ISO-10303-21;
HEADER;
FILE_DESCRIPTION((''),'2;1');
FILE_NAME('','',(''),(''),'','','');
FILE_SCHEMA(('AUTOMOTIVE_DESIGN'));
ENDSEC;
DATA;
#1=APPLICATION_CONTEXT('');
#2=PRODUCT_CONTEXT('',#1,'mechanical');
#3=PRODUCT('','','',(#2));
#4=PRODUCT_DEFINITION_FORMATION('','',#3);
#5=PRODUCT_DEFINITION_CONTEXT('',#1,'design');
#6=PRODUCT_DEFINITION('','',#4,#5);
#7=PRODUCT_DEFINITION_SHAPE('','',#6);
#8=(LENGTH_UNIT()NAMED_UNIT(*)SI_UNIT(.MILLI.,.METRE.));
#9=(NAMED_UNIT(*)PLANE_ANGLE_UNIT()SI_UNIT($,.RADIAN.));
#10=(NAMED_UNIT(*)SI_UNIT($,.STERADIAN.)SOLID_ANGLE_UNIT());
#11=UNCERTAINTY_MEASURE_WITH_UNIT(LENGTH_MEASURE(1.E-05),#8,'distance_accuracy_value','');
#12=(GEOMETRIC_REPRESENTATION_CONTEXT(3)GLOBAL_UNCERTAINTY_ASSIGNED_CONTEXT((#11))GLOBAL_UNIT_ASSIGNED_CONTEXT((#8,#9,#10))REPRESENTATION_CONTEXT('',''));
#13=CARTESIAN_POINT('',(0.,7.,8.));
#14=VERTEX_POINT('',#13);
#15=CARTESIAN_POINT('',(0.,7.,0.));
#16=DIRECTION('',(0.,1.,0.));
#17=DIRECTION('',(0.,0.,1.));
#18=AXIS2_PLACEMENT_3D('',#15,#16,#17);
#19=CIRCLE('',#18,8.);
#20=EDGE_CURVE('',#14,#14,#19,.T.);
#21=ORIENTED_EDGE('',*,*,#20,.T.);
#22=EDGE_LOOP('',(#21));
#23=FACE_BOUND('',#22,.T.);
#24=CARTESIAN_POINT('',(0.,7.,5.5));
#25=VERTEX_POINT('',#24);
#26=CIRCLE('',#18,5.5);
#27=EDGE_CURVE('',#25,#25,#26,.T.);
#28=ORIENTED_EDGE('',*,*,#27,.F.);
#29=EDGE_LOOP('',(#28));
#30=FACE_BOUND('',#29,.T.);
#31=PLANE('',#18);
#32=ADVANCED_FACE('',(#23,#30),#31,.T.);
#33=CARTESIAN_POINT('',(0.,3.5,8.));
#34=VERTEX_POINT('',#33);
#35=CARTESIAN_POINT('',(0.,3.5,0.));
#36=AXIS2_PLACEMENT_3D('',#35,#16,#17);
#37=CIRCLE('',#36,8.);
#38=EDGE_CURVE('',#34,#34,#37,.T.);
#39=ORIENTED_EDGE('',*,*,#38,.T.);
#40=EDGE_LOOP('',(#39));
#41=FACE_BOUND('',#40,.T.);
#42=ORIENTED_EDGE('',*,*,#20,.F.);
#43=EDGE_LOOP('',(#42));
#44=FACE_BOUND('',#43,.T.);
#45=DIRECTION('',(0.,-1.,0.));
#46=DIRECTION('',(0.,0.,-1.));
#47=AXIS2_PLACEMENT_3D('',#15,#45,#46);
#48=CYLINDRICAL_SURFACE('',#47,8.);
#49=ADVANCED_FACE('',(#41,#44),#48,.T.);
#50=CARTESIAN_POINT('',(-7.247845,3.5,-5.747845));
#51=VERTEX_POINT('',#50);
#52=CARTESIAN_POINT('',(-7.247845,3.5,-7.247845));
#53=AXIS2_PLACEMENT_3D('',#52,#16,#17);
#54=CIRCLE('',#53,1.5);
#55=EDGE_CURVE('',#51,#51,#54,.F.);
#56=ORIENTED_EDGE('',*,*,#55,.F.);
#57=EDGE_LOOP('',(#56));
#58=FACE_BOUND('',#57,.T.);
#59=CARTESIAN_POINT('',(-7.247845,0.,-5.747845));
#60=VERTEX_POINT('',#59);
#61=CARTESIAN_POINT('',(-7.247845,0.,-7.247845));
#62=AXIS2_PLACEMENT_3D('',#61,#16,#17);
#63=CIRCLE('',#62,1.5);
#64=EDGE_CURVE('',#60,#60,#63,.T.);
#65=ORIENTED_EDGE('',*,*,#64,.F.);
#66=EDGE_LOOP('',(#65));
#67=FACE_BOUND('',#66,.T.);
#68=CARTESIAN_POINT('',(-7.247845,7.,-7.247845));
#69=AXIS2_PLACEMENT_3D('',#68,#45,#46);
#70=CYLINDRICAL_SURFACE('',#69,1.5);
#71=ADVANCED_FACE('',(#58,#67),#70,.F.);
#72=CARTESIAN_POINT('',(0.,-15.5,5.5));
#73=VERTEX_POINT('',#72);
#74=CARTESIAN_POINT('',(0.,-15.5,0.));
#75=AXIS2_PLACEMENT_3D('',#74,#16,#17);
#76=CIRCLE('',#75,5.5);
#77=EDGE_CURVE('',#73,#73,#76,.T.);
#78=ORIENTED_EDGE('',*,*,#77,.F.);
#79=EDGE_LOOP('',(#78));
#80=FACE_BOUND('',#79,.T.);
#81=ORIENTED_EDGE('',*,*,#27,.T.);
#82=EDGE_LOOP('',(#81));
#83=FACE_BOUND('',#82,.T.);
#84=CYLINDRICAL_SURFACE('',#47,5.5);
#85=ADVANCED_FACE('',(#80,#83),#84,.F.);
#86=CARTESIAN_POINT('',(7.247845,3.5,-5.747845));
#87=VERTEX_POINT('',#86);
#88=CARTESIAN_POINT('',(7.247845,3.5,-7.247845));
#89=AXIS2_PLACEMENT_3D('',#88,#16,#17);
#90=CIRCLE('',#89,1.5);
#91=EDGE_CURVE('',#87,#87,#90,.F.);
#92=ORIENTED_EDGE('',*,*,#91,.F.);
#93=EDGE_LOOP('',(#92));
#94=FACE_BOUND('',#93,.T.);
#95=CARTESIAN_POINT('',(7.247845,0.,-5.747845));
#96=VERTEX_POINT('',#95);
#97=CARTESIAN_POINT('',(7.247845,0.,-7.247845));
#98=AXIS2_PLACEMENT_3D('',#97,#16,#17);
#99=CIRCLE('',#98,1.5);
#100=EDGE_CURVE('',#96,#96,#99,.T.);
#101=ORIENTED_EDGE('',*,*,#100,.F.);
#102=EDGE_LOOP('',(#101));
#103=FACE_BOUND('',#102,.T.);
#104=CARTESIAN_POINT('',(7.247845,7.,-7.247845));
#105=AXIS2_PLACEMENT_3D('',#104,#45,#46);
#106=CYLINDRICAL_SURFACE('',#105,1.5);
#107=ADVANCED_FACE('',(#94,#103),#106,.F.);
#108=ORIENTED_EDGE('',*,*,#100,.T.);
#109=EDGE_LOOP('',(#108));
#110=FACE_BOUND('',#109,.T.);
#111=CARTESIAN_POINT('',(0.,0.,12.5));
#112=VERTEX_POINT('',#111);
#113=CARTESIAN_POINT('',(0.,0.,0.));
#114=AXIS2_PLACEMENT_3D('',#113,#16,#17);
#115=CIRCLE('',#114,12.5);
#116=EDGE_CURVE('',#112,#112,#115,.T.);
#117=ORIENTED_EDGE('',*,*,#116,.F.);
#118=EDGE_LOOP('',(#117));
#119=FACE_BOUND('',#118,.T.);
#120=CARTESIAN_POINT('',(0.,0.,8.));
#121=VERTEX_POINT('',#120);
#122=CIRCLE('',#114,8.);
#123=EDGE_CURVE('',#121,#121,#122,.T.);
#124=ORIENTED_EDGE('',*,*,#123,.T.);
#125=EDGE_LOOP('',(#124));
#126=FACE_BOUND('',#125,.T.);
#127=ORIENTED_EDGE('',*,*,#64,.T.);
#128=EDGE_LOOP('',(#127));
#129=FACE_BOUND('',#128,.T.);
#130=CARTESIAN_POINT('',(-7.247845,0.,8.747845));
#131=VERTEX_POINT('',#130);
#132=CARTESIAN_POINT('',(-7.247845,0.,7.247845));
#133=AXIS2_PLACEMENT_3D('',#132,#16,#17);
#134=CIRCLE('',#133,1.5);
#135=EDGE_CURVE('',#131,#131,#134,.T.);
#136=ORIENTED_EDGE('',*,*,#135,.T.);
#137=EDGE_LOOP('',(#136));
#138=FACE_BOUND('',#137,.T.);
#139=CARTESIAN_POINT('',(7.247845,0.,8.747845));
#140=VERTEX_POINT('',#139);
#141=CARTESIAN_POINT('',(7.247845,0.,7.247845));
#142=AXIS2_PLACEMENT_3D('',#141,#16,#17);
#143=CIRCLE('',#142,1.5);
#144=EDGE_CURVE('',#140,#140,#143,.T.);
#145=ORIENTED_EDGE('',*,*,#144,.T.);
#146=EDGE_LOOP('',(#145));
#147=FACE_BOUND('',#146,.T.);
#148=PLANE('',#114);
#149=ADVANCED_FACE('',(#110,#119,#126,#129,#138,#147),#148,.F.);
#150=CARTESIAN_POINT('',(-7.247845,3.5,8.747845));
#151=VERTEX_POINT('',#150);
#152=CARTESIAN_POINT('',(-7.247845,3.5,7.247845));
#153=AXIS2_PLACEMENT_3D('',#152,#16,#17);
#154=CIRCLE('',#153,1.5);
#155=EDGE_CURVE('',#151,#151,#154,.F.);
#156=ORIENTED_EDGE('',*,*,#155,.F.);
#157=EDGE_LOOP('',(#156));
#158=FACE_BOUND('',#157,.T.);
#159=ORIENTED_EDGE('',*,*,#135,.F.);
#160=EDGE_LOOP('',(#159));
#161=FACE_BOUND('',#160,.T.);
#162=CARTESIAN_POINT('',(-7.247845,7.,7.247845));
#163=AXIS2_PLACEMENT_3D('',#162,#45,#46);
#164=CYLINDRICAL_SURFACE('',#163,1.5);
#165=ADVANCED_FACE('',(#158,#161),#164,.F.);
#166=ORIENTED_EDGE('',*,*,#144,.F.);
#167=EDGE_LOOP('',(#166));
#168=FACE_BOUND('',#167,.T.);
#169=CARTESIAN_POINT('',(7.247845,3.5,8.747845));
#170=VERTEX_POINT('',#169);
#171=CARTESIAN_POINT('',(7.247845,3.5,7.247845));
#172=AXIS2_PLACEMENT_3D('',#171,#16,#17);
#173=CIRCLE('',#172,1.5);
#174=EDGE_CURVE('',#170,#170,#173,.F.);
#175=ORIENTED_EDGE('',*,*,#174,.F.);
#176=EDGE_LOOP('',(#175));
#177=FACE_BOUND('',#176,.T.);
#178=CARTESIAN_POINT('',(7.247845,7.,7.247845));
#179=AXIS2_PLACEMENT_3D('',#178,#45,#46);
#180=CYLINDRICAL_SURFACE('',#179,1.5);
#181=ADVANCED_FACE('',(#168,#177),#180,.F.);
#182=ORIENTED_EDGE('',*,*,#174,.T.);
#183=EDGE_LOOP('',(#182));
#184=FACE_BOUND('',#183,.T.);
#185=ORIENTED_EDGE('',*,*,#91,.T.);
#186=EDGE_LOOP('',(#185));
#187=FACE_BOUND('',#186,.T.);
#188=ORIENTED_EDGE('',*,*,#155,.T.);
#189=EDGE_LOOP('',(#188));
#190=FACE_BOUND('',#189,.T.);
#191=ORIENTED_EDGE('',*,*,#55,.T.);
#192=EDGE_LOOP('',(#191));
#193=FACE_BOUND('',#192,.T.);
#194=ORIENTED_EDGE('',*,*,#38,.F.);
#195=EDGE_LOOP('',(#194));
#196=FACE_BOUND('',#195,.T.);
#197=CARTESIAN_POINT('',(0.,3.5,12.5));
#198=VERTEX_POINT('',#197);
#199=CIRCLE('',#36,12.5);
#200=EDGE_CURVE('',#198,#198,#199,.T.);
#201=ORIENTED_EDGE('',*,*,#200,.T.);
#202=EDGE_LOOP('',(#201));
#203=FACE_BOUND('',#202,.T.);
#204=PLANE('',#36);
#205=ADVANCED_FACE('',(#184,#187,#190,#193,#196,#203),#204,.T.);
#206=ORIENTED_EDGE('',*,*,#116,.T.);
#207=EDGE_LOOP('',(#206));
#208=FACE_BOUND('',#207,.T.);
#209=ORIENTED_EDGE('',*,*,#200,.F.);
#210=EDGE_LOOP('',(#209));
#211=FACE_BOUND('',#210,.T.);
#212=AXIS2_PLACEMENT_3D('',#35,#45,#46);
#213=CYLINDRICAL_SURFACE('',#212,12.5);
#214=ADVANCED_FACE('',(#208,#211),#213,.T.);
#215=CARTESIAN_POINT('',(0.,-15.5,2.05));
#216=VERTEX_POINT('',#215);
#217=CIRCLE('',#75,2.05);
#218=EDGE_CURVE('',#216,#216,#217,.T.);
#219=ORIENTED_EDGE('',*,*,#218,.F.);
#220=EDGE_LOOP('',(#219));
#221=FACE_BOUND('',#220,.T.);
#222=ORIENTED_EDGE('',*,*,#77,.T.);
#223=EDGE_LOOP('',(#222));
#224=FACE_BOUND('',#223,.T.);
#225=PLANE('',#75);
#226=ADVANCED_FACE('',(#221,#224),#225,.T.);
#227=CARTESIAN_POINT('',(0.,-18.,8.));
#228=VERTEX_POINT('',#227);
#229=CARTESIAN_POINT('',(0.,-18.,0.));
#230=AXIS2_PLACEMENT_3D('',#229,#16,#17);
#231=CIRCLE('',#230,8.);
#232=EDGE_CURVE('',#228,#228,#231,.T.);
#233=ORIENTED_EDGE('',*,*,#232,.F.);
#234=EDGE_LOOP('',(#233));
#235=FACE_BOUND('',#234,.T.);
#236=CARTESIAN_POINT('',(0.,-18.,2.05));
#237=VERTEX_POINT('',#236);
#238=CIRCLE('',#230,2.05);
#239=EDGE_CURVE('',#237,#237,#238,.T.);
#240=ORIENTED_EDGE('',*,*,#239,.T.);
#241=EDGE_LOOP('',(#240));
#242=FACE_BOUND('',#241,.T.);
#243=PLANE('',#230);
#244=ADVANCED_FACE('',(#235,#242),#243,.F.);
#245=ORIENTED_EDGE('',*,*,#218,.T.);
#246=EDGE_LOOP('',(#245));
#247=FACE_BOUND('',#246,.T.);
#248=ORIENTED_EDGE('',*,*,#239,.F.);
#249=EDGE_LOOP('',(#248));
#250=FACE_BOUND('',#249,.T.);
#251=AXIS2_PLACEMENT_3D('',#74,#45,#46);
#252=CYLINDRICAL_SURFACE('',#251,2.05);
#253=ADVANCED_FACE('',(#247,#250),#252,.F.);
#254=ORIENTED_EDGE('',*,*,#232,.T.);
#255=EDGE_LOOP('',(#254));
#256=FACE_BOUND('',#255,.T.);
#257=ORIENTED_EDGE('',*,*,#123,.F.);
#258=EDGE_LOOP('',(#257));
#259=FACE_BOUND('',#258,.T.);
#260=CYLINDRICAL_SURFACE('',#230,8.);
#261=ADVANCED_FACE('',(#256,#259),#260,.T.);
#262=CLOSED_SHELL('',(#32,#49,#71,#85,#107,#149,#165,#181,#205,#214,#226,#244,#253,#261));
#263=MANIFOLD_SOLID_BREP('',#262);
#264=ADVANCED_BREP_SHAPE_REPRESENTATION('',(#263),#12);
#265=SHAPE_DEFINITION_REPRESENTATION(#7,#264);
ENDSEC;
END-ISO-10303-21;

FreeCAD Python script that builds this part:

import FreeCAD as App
import Part
import Sketcher
from FreeCAD import Vector

doc = App.newDocument("Part")
body = doc.addObject("PartDesign::Body", "Body")

sketch1 = body.newObject("Sketcher::SketchObject", "Sketch")
sketch1.AttachmentSupport = (doc.getObject("XZ_Plane"), [""])
sketch1.MapMode = "FlatFace"
sketch1.addGeometry(Part.Circle(Vector(0, 0, 0), Vector(0, 0, 1), 12), False)
sketch1.addConstraint([
    Sketcher.Constraint("Coincident", 0, 3, -1, 1),
    Sketcher.Constraint("Diameter", 0, 25.0),
])
pad1 = body.newObject("PartDesign::Pad", "Pad")
pad1.Profile = sketch1
pad1.Length = 3.5
pad1.Reversed = True

sketch2 = body.newObject("Sketcher::SketchObject", "Sketch001")
sketch2.AttachmentSupport = (doc.getObject("XZ_Plane"), [""])
sketch2.MapMode = "FlatFace"
sketch2.AttachmentOffset = App.Placement(Vector(0, 0, -3.5), App.Rotation())
sketch2.addGeometry([
    Part.Circle(Vector(0, 0, 0), Vector(0, 0, 1), 8),
    Part.Circle(Vector(0, 0, 0), Vector(0, 0, 1), 6),
], False)
sketch2.addConstraint([
    Sketcher.Constraint("Coincident", 0, 3, -1, 1),
    Sketcher.Constraint("Coincident", 1, 3, -1, 1),
    Sketcher.Constraint("Diameter", 0, 16.0),
    Sketcher.Constraint("Diameter", 1, 11.0),
])
pad2 = body.newObject("PartDesign::Pad", "Pad001")
pad2.Profile = sketch2
pad2.Length = 3.5
pad2.Reversed = True

sketch3 = body.newObject("Sketcher::SketchObject", "Sketch002")
sketch3.AttachmentSupport = (doc.getObject("XZ_Plane"), [""])
sketch3.MapMode = "FlatFace"
sketch3.addGeometry([
    Part.Circle(Vector(0, 0, 0), Vector(0, 0, 1), 8),
    Part.Circle(Vector(0, 0, 0), Vector(0, 0, 1), 6),
], False)
sketch3.addConstraint([
    Sketcher.Constraint("Coincident", 0, 3, -1, 1),
    Sketcher.Constraint("Coincident", 1, 3, -1, 1),
    Sketcher.Constraint("Diameter", 0, 16.0),
    Sketcher.Constraint("Diameter", 1, 11.0),
])
pad3 = body.newObject("PartDesign::Pad", "Pad002")
pad3.Profile = sketch3
pad3.Length = 18

sketch4 = body.newObject("Sketcher::SketchObject", "Sketch003")
sketch4.AttachmentSupport = (doc.getObject("XZ_Plane"), [""])
sketch4.MapMode = "FlatFace"
sketch4.addGeometry(Part.Circle(Vector(0, 0, 0), Vector(0, 0, 1), 6), False)
sketch4.addConstraint([
    Sketcher.Constraint("Coincident", 0, 3, -1, 1),
    Sketcher.Constraint("Diameter", 0, 11.0),
])
pocket1 = body.newObject("PartDesign::Pocket", "Pocket")
pocket1.Profile = sketch4
pocket1.Type = "ThroughAll"

sketch5 = body.newObject("Sketcher::SketchObject", "Sketch004")
sketch5.AttachmentSupport = (doc.getObject("XZ_Plane"), [""])
sketch5.MapMode = "FlatFace"
sketch5.AttachmentOffset = App.Placement(Vector(0, 0, 18), App.Rotation())
sketch5.addGeometry([
    Part.Circle(Vector(0, 0, 0), Vector(0, 0, 1), 5.5),
    Part.Circle(Vector(0, 0, 0), Vector(0, 0, 1), 2),
], False)
sketch5.addConstraint([
    Sketcher.Constraint("Coincident", 0, 3, -1, 1),
    Sketcher.Constraint("Coincident", 1, 3, -1, 1),
    Sketcher.Constraint("Diameter", 0, 11.0),
    Sketcher.Constraint("Diameter", 1, 4.1),
])
pad4 = body.newObject("PartDesign::Pad", "Pad003")
pad4.Profile = sketch5
pad4.Length = 2.5
pad4.Reversed = True

sketch6 = body.newObject("Sketcher::SketchObject", "Sketch005")
sketch6.AttachmentSupport = (doc.getObject("XZ_Plane"), [""])
sketch6.MapMode = "FlatFace"
sketch6.addGeometry([
    Part.Circle(Vector(-7.2, -7.2, 0), Vector(0, 0, 1), 1.5),
    Part.Circle(Vector(7.2, -7.2, 0), Vector(0, 0, 1), 1.5),
    Part.Circle(Vector(7.2, 7.2, 0), Vector(0, 0, 1), 1.5),
    Part.Circle(Vector(-7.2, 7.2, 0), Vector(0, 0, 1), 1.5),
], False)
sketch6.addConstraint([
    Sketcher.Constraint("Equal", 0, 1),
    Sketcher.Constraint("Equal", 1, 2),
    Sketcher.Constraint("Equal", 2, 3),
    Sketcher.Constraint("Symmetric", 0, 3, 2, 3, -1, 1),
    Sketcher.Constraint("Symmetric", 1, 3, 3, 3, -1, 1),
    Sketcher.Constraint("Symmetric", 0, 3, 1, 3, -2),
    Sketcher.Constraint("Diameter", 0, 3.0),
    Sketcher.Constraint("DistanceX", 0, 3, 1, 3, 14.495689),
    Sketcher.Constraint("DistanceY", 1, 3, 2, 3, 14.495689),
])
pocket2 = body.newObject("PartDesign::Pocket", "Pocket001")
pocket2.Profile = sketch6
pocket2.Type = "ThroughAll"

doc.recompute()
